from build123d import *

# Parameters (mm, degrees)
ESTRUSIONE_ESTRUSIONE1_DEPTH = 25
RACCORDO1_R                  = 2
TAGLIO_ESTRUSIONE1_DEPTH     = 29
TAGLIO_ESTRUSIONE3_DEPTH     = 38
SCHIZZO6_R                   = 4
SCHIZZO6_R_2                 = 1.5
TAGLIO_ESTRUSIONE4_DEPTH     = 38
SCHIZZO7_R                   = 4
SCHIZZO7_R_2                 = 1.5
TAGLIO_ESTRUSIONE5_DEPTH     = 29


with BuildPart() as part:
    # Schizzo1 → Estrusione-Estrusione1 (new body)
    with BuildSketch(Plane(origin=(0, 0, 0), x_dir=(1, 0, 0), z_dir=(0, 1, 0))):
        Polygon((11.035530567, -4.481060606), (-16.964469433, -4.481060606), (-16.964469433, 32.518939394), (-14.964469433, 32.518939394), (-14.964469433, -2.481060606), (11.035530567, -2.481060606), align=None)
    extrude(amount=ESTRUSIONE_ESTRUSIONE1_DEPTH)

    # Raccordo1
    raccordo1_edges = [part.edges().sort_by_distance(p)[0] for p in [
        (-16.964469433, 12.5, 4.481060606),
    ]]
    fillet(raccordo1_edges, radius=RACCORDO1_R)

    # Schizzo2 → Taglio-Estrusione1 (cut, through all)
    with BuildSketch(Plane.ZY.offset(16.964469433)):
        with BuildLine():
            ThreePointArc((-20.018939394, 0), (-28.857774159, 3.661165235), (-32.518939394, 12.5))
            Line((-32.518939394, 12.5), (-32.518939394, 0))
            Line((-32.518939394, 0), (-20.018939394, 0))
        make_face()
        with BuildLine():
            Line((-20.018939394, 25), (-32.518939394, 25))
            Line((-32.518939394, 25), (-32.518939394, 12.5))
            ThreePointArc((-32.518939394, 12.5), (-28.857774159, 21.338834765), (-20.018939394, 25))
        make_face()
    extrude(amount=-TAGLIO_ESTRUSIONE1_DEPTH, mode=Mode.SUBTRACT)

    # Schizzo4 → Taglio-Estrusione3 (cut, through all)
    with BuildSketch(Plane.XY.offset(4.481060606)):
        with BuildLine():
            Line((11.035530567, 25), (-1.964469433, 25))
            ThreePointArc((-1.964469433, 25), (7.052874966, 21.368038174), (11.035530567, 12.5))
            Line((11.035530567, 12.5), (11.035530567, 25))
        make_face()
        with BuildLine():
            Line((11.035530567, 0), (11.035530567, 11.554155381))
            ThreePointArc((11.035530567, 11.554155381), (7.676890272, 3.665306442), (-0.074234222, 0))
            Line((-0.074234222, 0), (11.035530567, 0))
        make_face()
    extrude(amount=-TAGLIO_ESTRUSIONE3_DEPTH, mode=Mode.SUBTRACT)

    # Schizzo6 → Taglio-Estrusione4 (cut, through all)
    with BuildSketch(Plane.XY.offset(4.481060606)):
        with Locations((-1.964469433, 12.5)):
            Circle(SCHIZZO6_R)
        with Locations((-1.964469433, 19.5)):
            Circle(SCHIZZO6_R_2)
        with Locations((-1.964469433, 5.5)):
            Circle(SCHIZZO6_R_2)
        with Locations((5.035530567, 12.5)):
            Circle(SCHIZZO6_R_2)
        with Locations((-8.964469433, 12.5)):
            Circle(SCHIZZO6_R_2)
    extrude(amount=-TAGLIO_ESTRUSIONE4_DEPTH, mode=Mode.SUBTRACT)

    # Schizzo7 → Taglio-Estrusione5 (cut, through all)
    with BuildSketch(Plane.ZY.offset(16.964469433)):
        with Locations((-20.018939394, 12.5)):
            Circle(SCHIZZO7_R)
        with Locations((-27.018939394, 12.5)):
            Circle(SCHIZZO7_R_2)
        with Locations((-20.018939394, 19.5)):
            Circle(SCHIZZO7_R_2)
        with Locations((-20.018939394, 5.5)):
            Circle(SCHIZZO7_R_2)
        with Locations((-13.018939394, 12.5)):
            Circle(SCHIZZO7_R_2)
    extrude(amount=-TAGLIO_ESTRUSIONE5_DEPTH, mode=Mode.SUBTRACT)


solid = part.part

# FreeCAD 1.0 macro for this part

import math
import FreeCAD as App
import Part
import Sketcher
from FreeCAD import Vector


def edges_at(feature, points):
    """Names of the edges that pass closest to the given points."""
    edges = feature.Shape.Edges
    near = lambda p: min(range(len(edges)), key=lambda i: edges[i].distToShape(Part.Vertex(*p))[0])
    return sorted({f"Edge{near(p) + 1}" for p in points})

doc = App.newDocument("Part")
body = doc.addObject("PartDesign::Body", "Body")

# Sketch on XZ plane
sketch1 = doc.addObject("Sketcher::SketchObject", "Sketch")
body.addObject(sketch1)
sketch1.AttachmentSupport = (doc.XZ_Plane, [""])
sketch1.MapMode = "FlatFace"
sketch1.addGeometry([
    Part.LineSegment(Vector(-17, 4.5, 0), Vector(11, 4.5, 0)),  # 0
    Part.LineSegment(Vector(11, 4.5, 0), Vector(11, 2.5, 0)),  # 1
    Part.LineSegment(Vector(11, 2.5, 0), Vector(-15, 2.5, 0)),  # 2
    Part.LineSegment(Vector(-15, 2.5, 0), Vector(-15, -32.5, 0)),  # 3
    Part.LineSegment(Vector(-15, -32.5, 0), Vector(-17, -32.5, 0)),  # 4
    Part.LineSegment(Vector(-17, -32.5, 0), Vector(-17, 4.5, 0)),  # 5
], False)
sketch1.addConstraint([
    Sketcher.Constraint("Coincident", 0, 2, 1, 1),
    Sketcher.Constraint("Coincident", 1, 2, 2, 1),
    Sketcher.Constraint("Coincident", 2, 2, 3, 1),
    Sketcher.Constraint("Coincident", 3, 2, 4, 1),
    Sketcher.Constraint("Coincident", 4, 2, 5, 1),
    Sketcher.Constraint("Coincident", 5, 2, 0, 1),
    Sketcher.Constraint("Horizontal", 0),
    Sketcher.Constraint("Vertical", 1),
    Sketcher.Constraint("Horizontal", 2),
    Sketcher.Constraint("Vertical", 3),
    Sketcher.Constraint("Horizontal", 4),
    Sketcher.Constraint("Vertical", 5),
    Sketcher.Constraint("Equal", 4, 1),
    Sketcher.Constraint("DistanceX", 0, 1, 0, 2, 28.0),
    Sketcher.Constraint("DistanceX", 2, 2, 2, 1, 26.0),
    Sketcher.Constraint("DistanceY", 3, 2, 3, 1, 35.0),
    Sketcher.Constraint("DistanceX", -1, 1, 0, 2, 11.035531),
    Sketcher.Constraint("DistanceY", -1, 1, 0, 2, 4.481061),
])
pad1 = doc.addObject("PartDesign::Pad", "Pad")
body.addObject(pad1)
pad1.Profile = sketch1
pad1.Length = 25
pad1.Reversed = True
doc.recompute()

fillet = doc.addObject("PartDesign::Fillet", "Fillet")
body.addObject(fillet)
fillet.Base = (pad1, edges_at(pad1, [(-16.964, 12.5, 4.481)]))
fillet.Radius = 2

# Sketch on YZ plane
sketch2 = doc.addObject("Sketcher::SketchObject", "Sketch001")
body.addObject(sketch2)
sketch2.AttachmentSupport = (doc.YZ_Plane, [""])
sketch2.MapMode = "FlatFace"
sketch2.AttachmentOffset = App.Placement(Vector(0, 0, -16.964469), App.Rotation())
sketch2.addGeometry([
    Part.ArcOfCircle(Part.Circle(Vector(12, -20, 0), Vector(0, 0, 1), 12), math.radians(180), math.radians(270)),  # 0
    Part.LineSegment(Vector(12, -33, 0), Vector(0, -33, 0)),  # 1
    Part.LineSegment(Vector(0, -33, 0), Vector(0, -20, 0)),  # 2
    Part.LineSegment(Vector(25, -20, 0), Vector(25, -33, 0)),  # 3
    Part.LineSegment(Vector(25, -33, 0), Vector(12, -33, 0)),  # 4
    Part.ArcOfCircle(Part.Circle(Vector(13, -20, 0), Vector(0, 0, 1), 12), math.radians(-90), math.radians(0)),  # 5
], False)
sketch2.addConstraint([
    Sketcher.Constraint("Tangent", 0, 2, 1, 1),
    Sketcher.Constraint("Coincident", 1, 2, 2, 1),
    Sketcher.Constraint("Tangent", 2, 2, 0, 1),
    Sketcher.Constraint("Coincident", 3, 2, 4, 1),
    Sketcher.Constraint("Tangent", 4, 2, 5, 1),
    Sketcher.Constraint("Tangent", 5, 2, 3, 1),
    Sketcher.Constraint("Horizontal", 1),
    Sketcher.Constraint("Vertical", 2),
    Sketcher.Constraint("Vertical", 3),
    Sketcher.Constraint("Horizontal", 4),
    Sketcher.Constraint("Coincident", 5, 3, 0, 3),
    Sketcher.Constraint("Equal", 0, 5),
    Sketcher.Constraint("PointOnObject", 1, 2, -2),
    Sketcher.Constraint("Radius", 0, 12.5),
    Sketcher.Constraint("DistanceY", 0, 3, -1, 1, 20.018939),
])
pocket1 = doc.addObject("PartDesign::Pocket", "Pocket")
body.addObject(pocket1)
pocket1.Profile = sketch2
pocket1.Type = "ThroughAll"
pocket1.Reversed = True

# Sketch on XY plane
sketch3 = doc.addObject("Sketcher::SketchObject", "Sketch002")
body.addObject(sketch3)
sketch3.AttachmentSupport = (doc.XY_Plane, [""])
sketch3.MapMode = "FlatFace"
sketch3.AttachmentOffset = App.Placement(Vector(0, 0, 4.481061), App.Rotation())
sketch3.addGeometry([
    Part.LineSegment(Vector(11, 25, 0), Vector(-2, 25, 0)),  # 0
    Part.ArcOfCircle(Part.Circle(Vector(-2, 12, 0), Vector(0, 0, 1), 13), math.radians(2), math.radians(90)),  # 1
    Part.LineSegment(Vector(11, 12, 0), Vector(11, 25, 0)),  # 2
    Part.LineSegment(Vector(11, 0, 0), Vector(11, 12, 0)),  # 3
    Part.ArcOfCircle(Part.Circle(Vector(-1, 12, 0), Vector(0, 0, 1), 12), math.radians(-86), math.radians(-2)),  # 4
    Part.LineSegment(Vector(0, 0, 0), Vector(11, 0, 0)),  # 5
], False)
sketch3.addConstraint([
    Sketcher.Constraint("Tangent", 0, 2, 1, 2),
    Sketcher.Constraint("Coincident", 1, 1, 2, 1),
    Sketcher.Constraint("Coincident", 2, 2, 0, 1),
    Sketcher.Constraint("Coincident", 3, 2, 4, 2),
    Sketcher.Constraint("Coincident", 4, 1, 5, 1),
    Sketcher.Constraint("Coincident", 5, 2, 3, 1),
    Sketcher.Constraint("Horizontal", 0),
    Sketcher.Constraint("Vertical", 2),
    Sketcher.Constraint("Vertical", 3),
    Sketcher.Constraint("Horizontal", 5),
    Sketcher.Constraint("PointOnObject", 4, 1, -1),
    Sketcher.Constraint("Vertical", 2, 2, 3, 2),
    Sketcher.Constraint("DistanceX", 0, 2, 0, 1, 13.0),
    Sketcher.Constraint("Radius", 1, 13.01),
    Sketcher.Constraint("DistanceY", -1, 1, 0, 2, 25.0),
    Sketcher.Constraint("Radius", 4, 12.064155),
    Sketcher.Constraint("DistanceX", 5, 1, 5, 2, 11.109765),
    Sketcher.Constraint("DistanceY", 3, 1, 3, 2, 11.554155),
    Sketcher.Constraint("DistanceX", 1, 3, -1, 1, 1.964469),
])
pocket2 = doc.addObject("PartDesign::Pocket", "Pocket001")
body.addObject(pocket2)
pocket2.Profile = sketch3
pocket2.Type = "ThroughAll"

# Sketch on XY plane
sketch4 = doc.addObject("Sketcher::SketchObject", "Sketch003")
body.addObject(sketch4)
sketch4.AttachmentSupport = (doc.XY_Plane, [""])
sketch4.MapMode = "FlatFace"
sketch4.AttachmentOffset = App.Placement(Vector(0, 0, 4.481061), App.Rotation())
sketch4.addGeometry([
    Part.Circle(Vector(-2, 12.5, 0), Vector(0, 0, 1), 4),  # 0
    Part.Circle(Vector(-2, 19.5, 0), Vector(0, 0, 1), 1.5),  # 1
    Part.Circle(Vector(-2, 5.5, 0), Vector(0, 0, 1), 1.5),  # 2
    Part.Circle(Vector(5, 12.5, 0), Vector(0, 0, 1), 1.5),  # 3
    Part.Circle(Vector(-9, 12.5, 0), Vector(0, 0, 1), 1.5),  # 4
], False)
sketch4.addConstraint([
    Sketcher.Constraint("Equal", 1, 2),
    Sketcher.Constraint("Equal", 2, 3),
    Sketcher.Constraint("Equal", 3, 4),
    Sketcher.Constraint("Horizontal", 0, 3, 3, 3),
    Sketcher.Constraint("Horizontal", 3, 3, 4, 3),
    Sketcher.Constraint("Vertical", 0, 3, 1, 3),
    Sketcher.Constraint("Vertical", 1, 3, 2, 3),
    Sketcher.Constraint("Diameter", 0, 8.0),
    Sketcher.Constraint("Diameter", 1, 3.0),
    Sketcher.Constraint("DistanceY", 0, 3, 1, 3, 7.0),
    Sketcher.Constraint("DistanceY", 2, 3, 0, 3, 7.0),
    Sketcher.Constraint("DistanceX", 0, 3, 3, 3, 7.0),
    Sketcher.Constraint("DistanceX", 4, 3, 0, 3, 7.0),
    Sketcher.Constraint("DistanceY", -1, 1, 0, 3, 12.5),
    Sketcher.Constraint("DistanceX", 0, 3, -1, 1, 1.964469),
])
pocket3 = doc.addObject("PartDesign::Pocket", "Pocket002")
body.addObject(pocket3)
pocket3.Profile = sketch4
pocket3.Type = "ThroughAll"

# Sketch on YZ plane
sketch5 = doc.addObject("Sketcher::SketchObject", "Sketch004")
body.addObject(sketch5)
sketch5.AttachmentSupport = (doc.YZ_Plane, [""])
sketch5.MapMode = "FlatFace"
sketch5.AttachmentOffset = App.Placement(Vector(0, 0, -16.964469), App.Rotation())
sketch5.addGeometry([
    Part.Circle(Vector(12.5, -20, 0), Vector(0, 0, 1), 4),  # 0
    Part.Circle(Vector(12.5, -27, 0), Vector(0, 0, 1), 1.5),  # 1
    Part.Circle(Vector(19.5, -20, 0), Vector(0, 0, 1), 1.5),  # 2
    Part.Circle(Vector(5.5, -20, 0), Vector(0, 0, 1), 1.5),  # 3
    Part.Circle(Vector(12.5, -13, 0), Vector(0, 0, 1), 1.5),  # 4
], False)
sketch5.addConstraint([
    Sketcher.Constraint("Equal", 1, 2),
    Sketcher.Constraint("Equal", 2, 3),
    Sketcher.Constraint("Equal", 3, 4),
    Sketcher.Constraint("Horizontal", 0, 3, 2, 3),
    Sketcher.Constraint("Horizontal", 2, 3, 3, 3),
    Sketcher.Constraint("Vertical", 0, 3, 1, 3),
    Sketcher.Constraint("Vertical", 1, 3, 4, 3),
    Sketcher.Constraint("Diameter", 0, 8.0),
    Sketcher.Constraint("Diameter", 1, 3.0),
    Sketcher.Constraint("DistanceY", 1, 3, 0, 3, 7.0),
    Sketcher.Constraint("DistanceX", 0, 3, 2, 3, 7.0),
    Sketcher.Constraint("DistanceX", 3, 3, 0, 3, 7.0),
    Sketcher.Constraint("DistanceY", 0, 3, 4, 3, 7.0),
    Sketcher.Constraint("DistanceX", -1, 1, 0, 3, 12.5),
    Sketcher.Constraint("DistanceY", 0, 3, -1, 1, 20.018939),
])
pocket4 = doc.addObject("PartDesign::Pocket", "Pocket003")
body.addObject(pocket4)
pocket4.Profile = sketch5
pocket4.Type = "ThroughAll"
pocket4.Reversed = True

doc.recompute()
